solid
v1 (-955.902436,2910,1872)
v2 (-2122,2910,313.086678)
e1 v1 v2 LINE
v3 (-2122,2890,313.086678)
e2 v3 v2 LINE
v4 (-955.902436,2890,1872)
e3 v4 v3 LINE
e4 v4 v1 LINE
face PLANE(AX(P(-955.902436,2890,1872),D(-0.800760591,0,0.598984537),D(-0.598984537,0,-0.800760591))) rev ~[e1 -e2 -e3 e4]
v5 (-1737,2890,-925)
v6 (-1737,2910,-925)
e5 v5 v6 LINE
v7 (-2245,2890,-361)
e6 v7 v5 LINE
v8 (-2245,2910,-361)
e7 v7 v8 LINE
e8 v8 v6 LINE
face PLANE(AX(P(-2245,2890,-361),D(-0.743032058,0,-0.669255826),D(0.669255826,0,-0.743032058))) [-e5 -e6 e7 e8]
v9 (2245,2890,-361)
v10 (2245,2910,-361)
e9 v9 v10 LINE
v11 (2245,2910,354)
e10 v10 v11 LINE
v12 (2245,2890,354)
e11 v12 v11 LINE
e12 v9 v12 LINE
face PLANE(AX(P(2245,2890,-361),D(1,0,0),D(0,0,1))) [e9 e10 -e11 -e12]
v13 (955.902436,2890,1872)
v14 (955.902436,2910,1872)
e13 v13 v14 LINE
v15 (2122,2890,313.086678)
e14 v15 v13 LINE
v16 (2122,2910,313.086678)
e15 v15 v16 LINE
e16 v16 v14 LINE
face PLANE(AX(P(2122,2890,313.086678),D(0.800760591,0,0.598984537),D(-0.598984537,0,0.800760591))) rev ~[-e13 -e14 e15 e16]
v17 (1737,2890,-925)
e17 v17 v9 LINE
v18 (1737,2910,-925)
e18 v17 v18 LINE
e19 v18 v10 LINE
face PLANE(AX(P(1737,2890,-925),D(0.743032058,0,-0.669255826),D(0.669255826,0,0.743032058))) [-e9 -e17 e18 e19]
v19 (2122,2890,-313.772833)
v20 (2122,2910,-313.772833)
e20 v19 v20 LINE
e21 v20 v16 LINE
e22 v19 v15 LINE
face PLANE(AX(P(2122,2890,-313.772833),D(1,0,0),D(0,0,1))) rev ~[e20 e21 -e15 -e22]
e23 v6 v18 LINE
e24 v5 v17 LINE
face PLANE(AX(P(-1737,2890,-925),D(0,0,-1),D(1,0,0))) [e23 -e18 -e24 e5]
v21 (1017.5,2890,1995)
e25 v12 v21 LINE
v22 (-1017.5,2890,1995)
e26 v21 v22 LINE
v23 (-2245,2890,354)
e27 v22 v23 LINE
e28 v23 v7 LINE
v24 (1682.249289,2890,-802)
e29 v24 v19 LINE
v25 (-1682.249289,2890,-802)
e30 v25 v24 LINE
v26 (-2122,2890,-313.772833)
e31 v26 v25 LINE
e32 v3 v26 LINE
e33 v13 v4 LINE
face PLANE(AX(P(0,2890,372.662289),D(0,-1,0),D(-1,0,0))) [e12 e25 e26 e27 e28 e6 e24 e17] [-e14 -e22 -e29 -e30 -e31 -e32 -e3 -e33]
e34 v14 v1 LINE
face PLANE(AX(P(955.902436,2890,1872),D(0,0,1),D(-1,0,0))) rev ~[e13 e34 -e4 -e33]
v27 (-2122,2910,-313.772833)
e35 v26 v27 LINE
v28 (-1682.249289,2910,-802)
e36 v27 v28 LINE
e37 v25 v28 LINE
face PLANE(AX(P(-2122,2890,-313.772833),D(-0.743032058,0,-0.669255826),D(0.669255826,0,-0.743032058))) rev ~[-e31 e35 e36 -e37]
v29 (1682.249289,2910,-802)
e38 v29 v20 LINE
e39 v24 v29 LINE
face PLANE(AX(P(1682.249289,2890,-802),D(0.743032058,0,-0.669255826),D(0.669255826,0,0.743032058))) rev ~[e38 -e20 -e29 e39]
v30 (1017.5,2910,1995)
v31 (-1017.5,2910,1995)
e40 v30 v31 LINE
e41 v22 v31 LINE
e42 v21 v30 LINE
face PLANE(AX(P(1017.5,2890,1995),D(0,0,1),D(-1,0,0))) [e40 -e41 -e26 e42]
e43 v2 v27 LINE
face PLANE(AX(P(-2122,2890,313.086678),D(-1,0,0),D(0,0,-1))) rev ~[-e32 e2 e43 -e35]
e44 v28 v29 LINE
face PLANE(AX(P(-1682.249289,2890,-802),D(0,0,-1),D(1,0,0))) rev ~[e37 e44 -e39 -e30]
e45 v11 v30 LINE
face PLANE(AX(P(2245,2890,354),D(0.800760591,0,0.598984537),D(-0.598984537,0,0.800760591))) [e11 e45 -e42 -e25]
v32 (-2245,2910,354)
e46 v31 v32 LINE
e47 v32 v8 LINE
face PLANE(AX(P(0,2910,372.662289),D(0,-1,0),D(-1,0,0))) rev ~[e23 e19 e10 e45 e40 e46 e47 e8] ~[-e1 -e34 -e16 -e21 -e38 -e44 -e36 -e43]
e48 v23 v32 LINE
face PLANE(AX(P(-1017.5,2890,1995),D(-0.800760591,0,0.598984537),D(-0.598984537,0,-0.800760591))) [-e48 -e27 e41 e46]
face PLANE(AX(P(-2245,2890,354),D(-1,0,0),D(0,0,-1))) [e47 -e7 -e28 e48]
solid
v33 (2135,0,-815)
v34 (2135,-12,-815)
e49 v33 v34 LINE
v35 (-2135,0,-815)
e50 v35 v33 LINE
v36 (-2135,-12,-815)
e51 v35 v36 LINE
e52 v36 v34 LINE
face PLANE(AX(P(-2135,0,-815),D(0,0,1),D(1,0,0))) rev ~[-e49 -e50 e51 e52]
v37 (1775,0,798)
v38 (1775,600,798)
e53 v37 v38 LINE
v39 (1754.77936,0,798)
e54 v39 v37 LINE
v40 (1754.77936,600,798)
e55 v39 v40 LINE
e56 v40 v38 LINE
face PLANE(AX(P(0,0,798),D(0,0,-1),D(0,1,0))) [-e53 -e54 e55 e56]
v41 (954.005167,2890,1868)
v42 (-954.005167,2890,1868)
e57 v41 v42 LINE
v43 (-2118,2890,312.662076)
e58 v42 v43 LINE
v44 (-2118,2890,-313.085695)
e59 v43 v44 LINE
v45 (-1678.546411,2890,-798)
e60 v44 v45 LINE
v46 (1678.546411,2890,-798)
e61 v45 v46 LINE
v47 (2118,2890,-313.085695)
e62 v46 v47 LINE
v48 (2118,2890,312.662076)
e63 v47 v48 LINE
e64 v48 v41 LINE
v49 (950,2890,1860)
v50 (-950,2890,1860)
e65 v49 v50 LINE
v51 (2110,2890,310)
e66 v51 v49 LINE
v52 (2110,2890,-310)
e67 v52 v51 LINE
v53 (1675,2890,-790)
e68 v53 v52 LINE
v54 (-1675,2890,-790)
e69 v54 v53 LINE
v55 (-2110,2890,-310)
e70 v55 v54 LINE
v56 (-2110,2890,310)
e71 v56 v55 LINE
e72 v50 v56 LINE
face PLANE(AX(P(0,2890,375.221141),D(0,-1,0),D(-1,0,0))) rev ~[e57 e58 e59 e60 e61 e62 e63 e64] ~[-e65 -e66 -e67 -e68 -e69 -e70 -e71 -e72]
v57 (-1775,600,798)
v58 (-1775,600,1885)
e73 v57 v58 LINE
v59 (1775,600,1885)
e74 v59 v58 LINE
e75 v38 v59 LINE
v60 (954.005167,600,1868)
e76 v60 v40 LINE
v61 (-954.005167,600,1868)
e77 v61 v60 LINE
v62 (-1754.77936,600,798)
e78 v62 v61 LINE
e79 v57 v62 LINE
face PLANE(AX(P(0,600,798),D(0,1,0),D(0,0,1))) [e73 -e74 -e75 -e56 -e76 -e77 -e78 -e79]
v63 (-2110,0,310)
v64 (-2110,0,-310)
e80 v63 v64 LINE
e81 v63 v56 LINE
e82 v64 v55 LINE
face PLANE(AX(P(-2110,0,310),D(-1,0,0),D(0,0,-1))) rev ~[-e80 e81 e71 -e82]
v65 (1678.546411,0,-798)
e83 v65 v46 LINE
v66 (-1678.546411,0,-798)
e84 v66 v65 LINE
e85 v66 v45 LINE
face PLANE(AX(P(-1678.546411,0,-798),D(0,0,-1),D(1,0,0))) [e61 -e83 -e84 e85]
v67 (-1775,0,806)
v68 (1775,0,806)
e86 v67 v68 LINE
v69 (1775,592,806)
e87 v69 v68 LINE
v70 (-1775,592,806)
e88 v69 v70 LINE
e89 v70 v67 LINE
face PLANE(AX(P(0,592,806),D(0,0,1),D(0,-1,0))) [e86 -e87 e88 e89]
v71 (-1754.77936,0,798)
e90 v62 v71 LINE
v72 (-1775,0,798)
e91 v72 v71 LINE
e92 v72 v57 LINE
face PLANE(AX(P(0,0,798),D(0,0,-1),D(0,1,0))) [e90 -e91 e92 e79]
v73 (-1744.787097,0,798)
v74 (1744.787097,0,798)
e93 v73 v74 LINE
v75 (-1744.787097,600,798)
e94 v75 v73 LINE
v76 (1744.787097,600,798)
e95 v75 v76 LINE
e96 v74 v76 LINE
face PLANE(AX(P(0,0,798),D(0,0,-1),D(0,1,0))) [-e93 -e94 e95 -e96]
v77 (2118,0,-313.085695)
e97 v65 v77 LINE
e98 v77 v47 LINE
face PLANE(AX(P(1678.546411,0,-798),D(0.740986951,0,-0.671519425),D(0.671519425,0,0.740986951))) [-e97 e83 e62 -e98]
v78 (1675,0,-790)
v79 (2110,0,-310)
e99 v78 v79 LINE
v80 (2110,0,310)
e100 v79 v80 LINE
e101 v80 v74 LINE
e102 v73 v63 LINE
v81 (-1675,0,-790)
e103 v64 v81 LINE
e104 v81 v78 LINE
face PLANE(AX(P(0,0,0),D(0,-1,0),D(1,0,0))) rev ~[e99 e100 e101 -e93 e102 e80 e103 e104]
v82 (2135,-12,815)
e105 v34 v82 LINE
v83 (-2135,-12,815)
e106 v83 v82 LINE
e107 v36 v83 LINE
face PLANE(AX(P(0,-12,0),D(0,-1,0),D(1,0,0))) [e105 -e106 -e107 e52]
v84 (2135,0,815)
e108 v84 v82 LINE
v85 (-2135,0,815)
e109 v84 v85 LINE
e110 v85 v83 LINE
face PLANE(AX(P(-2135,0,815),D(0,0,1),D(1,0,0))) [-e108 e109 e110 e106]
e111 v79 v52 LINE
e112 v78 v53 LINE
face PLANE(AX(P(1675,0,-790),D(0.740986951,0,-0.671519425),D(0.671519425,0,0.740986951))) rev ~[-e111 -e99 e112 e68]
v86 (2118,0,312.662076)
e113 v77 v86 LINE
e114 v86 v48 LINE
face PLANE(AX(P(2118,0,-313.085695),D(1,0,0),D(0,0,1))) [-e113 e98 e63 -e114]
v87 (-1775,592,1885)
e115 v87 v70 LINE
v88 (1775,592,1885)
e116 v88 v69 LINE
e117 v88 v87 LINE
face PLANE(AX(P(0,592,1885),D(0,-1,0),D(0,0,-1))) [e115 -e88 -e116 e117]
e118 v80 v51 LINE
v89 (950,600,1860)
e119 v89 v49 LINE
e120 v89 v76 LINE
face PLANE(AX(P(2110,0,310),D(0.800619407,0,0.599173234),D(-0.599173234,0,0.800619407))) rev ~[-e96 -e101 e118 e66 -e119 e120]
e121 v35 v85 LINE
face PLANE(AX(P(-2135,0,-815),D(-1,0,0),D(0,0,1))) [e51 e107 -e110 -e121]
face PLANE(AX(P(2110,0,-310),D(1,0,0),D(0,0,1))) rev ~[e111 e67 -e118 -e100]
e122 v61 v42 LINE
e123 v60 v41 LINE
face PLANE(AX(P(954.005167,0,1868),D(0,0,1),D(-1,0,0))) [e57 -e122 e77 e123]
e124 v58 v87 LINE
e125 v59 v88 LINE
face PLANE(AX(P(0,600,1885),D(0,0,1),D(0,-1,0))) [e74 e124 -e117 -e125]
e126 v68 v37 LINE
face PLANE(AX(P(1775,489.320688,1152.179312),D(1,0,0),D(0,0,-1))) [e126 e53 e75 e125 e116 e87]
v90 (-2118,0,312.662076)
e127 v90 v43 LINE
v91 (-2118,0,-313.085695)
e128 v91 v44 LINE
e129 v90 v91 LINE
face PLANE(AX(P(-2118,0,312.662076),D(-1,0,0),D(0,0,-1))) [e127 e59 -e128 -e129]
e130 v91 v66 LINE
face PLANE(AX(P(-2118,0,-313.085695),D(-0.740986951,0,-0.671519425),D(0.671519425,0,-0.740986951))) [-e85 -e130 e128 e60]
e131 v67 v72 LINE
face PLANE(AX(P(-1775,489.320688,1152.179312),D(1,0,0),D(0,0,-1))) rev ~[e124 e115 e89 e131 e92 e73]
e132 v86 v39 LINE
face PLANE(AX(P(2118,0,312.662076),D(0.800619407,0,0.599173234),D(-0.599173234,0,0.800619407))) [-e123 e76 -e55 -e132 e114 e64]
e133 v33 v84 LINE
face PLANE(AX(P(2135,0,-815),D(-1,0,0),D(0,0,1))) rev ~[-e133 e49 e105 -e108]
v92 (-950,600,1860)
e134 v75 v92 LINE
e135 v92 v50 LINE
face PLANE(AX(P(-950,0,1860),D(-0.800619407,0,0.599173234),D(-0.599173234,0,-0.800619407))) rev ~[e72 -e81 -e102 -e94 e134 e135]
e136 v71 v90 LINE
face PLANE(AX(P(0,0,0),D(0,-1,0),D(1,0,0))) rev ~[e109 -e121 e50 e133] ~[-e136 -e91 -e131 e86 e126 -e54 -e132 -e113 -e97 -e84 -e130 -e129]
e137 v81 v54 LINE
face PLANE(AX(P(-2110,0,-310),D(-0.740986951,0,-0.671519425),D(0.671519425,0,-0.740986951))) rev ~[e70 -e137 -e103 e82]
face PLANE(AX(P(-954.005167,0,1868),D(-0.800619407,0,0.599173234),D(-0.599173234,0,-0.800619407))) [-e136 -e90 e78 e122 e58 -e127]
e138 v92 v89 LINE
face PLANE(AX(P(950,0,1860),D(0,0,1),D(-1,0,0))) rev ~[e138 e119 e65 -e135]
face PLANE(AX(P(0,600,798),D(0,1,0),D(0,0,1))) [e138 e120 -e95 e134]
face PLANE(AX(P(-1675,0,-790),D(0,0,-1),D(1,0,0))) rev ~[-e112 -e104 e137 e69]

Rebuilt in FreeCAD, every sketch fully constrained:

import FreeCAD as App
import Part
import Sketcher
Q = App.Units.Quantity


def add_polygon(sketch, points):
    """Adds a closed chain of lines whose ends are joined by coincident constraints."""
    first, n = sketch.GeometryCount, len(points)
    for a, b in zip(points, points[1:] + points[:1]):
        sketch.addGeometry(Part.LineSegment(App.Vector(*a, 0), App.Vector(*b, 0)), False)
    for i in range(n):
        sketch.addConstraint(Sketcher.Constraint("Coincident", first + i, 2, first + (i + 1) % n, 1))

doc = App.newDocument("Part")
params = doc.addObject("Spreadsheet::Sheet", "Params")
for row, (alias, value) in enumerate([
    ("sketch1_width", "3350 mm"),
    ("sketch1_width2", "1900 mm"),
    ("sketch1_height", "620 mm"),
    ("pad1_length", "2890 mm"),
    ("sketch2_width", "4270 mm"),
    ("sketch2_height", "1630 mm"),
    ("pad2_length", "12 mm"),
    ("pocket1_length", "600 mm"),
    ("sketch4_width", "592 mm"),
    ("sketch4_width2", "600 mm"),
    ("sketch4_height", "1087 mm"),
    ("pad3_length", "3550 mm"),
    ("sketch5_width", "3474 mm"),
    ("sketch5_width2", "2035 mm"),
    ("sketch5_height", "715 mm"),
    ("pad4_length", "20 mm"),
], start=1):
    params.set(f"A{row}", alias)
    params.set(f"B{row}", "=" + value)
    params.setAlias(f"B{row}", alias)

body = doc.addObject("PartDesign::Body", "Body")

# Sketch on XZ plane
sketch1 = body.newObject("Sketcher::SketchObject", "Sketch")
sketch1.AttachmentSupport = (doc.getObject("XZ_Plane"), [""])
sketch1.MapMode = "FlatFace"
add_polygon(sketch1, [(1679, -798), (-1679, -798), (-2118, -313), (-2118, 313), (-954, 1868), (954, 1868), (2118, 313), (2118, -313)])  # lines 0-7
add_polygon(sketch1, [(-1675, -790), (1675, -790), (2110, -310), (2110, 310), (950, 1860), (-950, 1860), (-2110, 310), (-2110, -310)])  # lines 8-15
sketch1.addConstraint([
    Sketcher.Constraint("Horizontal", 0),
    Sketcher.Constraint("Vertical", 2),
    Sketcher.Constraint("Horizontal", 4),
    Sketcher.Constraint("Vertical", 6),
    Sketcher.Constraint("Horizontal", 8),
    Sketcher.Constraint("Vertical", 10),
    Sketcher.Constraint("Horizontal", 12),
    Sketcher.Constraint("Vertical", 14),
    Sketcher.Constraint("Symmetric", 9, 2, 13, 2, -1, 1),
    Sketcher.Constraint("Symmetric", 2, 2, 5, 2, -2),
    Sketcher.Constraint("Parallel", 7, 9),
    Sketcher.Constraint("Parallel", 5, 11),
    Sketcher.Constraint("Parallel", 3, 13),
    Sketcher.Constraint("Parallel", 1, 15),
    Sketcher.Constraint("Horizontal", 1, 2, 6, 2),
    Sketcher.Constraint("Horizontal", 10, 2, 13, 2),
    Sketcher.Constraint("Horizontal", 9, 2, 14, 2),
    Sketcher.Constraint("Equal", 3, 5),
    Sketcher.Constraint("Equal", 1, 7),
    Sketcher.Constraint("DistanceX", 8, 1, 8, 2, Q("3350 mm")),
    Sketcher.Constraint("DistanceX", 12, 2, 12, 1, Q("1900 mm")),
    Sketcher.Constraint("DistanceY", 10, 1, 10, 2, Q("620 mm")),
    Sketcher.Constraint("DistanceY", 0, 2, -1, 1, Q("798 mm")),
    Sketcher.Constraint("DistanceX", 1, 2, -1, 1, Q("2118 mm")),
    Sketcher.Constraint("DistanceY", -1, 1, 3, 2, Q("1868 mm")),
    Sketcher.Constraint("DistanceY", 8, 2, -1, 1, Q("790 mm")),
    Sketcher.Constraint("DistanceX", -1, 1, 9, 2, Q("2110 mm")),
    Sketcher.Constraint("DistanceY", -1, 1, 11, 2, Q("1860 mm")),
    Sketcher.Constraint("DistanceY", 2, 1, 2, 2, Q("625.747771 mm")),
    Sketcher.Constraint("DistanceX", 0, 2, 0, 1, Q("3357.092823 mm")),
])
sketch1.setExpression("Constraints[35]", "Params.sketch1_width")
sketch1.setExpression("Constraints[36]", "Params.sketch1_width2")
sketch1.setExpression("Constraints[37]", "Params.sketch1_height")
pad1 = body.newObject("PartDesign::Pad", "Pad")
pad1.Profile = sketch1
pad1.setExpression("Length", "Params.pad1_length")
pad1.Reversed = True

# Sketch on XZ plane
sketch2 = body.newObject("Sketcher::SketchObject", "Sketch001")
sketch2.AttachmentSupport = (doc.getObject("XZ_Plane"), [""])
sketch2.MapMode = "FlatFace"
add_polygon(sketch2, [(-2135, 815), (-2135, -815), (2135, -815), (2135, 815)])  # lines 0-3
sketch2.addConstraint([
    Sketcher.Constraint("Vertical", 0),
    Sketcher.Constraint("Horizontal", 1),
    Sketcher.Constraint("Vertical", 2),
    Sketcher.Constraint("Horizontal", 3),
    Sketcher.Constraint("Symmetric", 0, 2, 2, 2, -1, 1),
    Sketcher.Constraint("DistanceX", 1, 1, 1, 2, Q("4270 mm")),
    Sketcher.Constraint("DistanceY", 0, 2, 0, 1, Q("1630 mm")),
])
sketch2.setExpression("Constraints[9]", "Params.sketch2_width")
sketch2.setExpression("Constraints[10]", "Params.sketch2_height")
pad2 = body.newObject("PartDesign::Pad", "Pad001")
pad2.Profile = sketch2
pad2.setExpression("Length", "Params.pad2_length")

# Sketch on XZ plane
sketch3 = body.newObject("Sketcher::SketchObject", "Sketch002")
sketch3.AttachmentSupport = (doc.getObject("XZ_Plane"), [""])
sketch3.MapMode = "FlatFace"
add_polygon(sketch3, [(-1758, 1998), (-1758, 798), (1908, 798), (1908, 1998)])  # lines 0-3
sketch3.addConstraint([
    Sketcher.Constraint("Vertical", 0),
    Sketcher.Constraint("Horizontal", 1),
    Sketcher.Constraint("Vertical", 2),
    Sketcher.Constraint("Horizontal", 3),
    Sketcher.Constraint("DistanceY", -1, 1, 0, 2, Q("798 mm")),
    Sketcher.Constraint("DistanceX", 1, 1, 1, 2, Q("3666.559691 mm")),
    Sketcher.Constraint("DistanceY", 0, 2, 0, 1, Q("1200.183205 mm")),
    Sketcher.Constraint("DistanceX", 0, 2, -1, 1, Q("1758.200111 mm")),
])
pocket1 = body.newObject("PartDesign::Pocket", "Pocket")
pocket1.Profile = sketch3
pocket1.setExpression("Length", "Params.pocket1_length")

# Sketch on YZ plane
sketch4 = body.newObject("Sketcher::SketchObject", "Sketch003")
sketch4.AttachmentSupport = (doc.getObject("YZ_Plane"), [""])
sketch4.MapMode = "FlatFace"
add_polygon(sketch4, [(592, 806), (0, 806), (0, 798), (600, 798), (600, 1885), (592, 1885)])  # lines 0-5
sketch4.addConstraint([
    Sketcher.Constraint("Horizontal", 0),
    Sketcher.Constraint("Vertical", 1),
    Sketcher.Constraint("Horizontal", 2),
    Sketcher.Constraint("Vertical", 3),
    Sketcher.Constraint("Horizontal", 4),
    Sketcher.Constraint("Vertical", 5),
    Sketcher.Constraint("PointOnObject", 0, 2, -2),
    Sketcher.Constraint("Equal", 4, 1),
    Sketcher.Constraint("DistanceX", 0, 2, 0, 1, Q("592 mm")),
    Sketcher.Constraint("DistanceX", 2, 1, 2, 2, Q("600 mm")),
    Sketcher.Constraint("DistanceY", 3, 1, 3, 2, Q("1087 mm")),
    Sketcher.Constraint("DistanceY", -1, 1, 0, 2, Q("806 mm")),
])
sketch4.setExpression("Constraints[14]", "Params.sketch4_width")
sketch4.setExpression("Constraints[15]", "Params.sketch4_width2")
sketch4.setExpression("Constraints[16]", "Params.sketch4_height")
pad3 = body.newObject("PartDesign::Pad", "Pad002")
pad3.Profile = sketch4
pad3.setExpression("Length", "Params.pad3_length")
pad3.Midplane = True
body2 = doc.addObject("PartDesign::Body", "Body001")

# Sketch on XZ plane
sketch5 = body2.newObject("Sketcher::SketchObject", "Sketch004")
sketch5.AttachmentSupport = (doc.getObject("XZ_Plane001"), [""])
sketch5.MapMode = "FlatFace"
sketch5.AttachmentOffset = App.Placement(App.Vector(0, 0, -2890), App.Rotation())
add_polygon(sketch5, [(1737, -925), (-1737, -925), (-2245, -361), (-2245, 354), (-1018, 1995), (1018, 1995), (2245, 354), (2245, -361)])  # lines 0-7
add_polygon(sketch5, [(-1682, -802), (1682, -802), (2122, -314), (2122, 313), (956, 1872), (-956, 1872), (-2122, 313), (-2122, -314)])  # lines 8-15
sketch5.addConstraint([
    Sketcher.Constraint("Horizontal", 0),
    Sketcher.Constraint("Vertical", 2),
    Sketcher.Constraint("Horizontal", 4),
    Sketcher.Constraint("Vertical", 6),
    Sketcher.Constraint("Horizontal", 8),
    Sketcher.Constraint("Vertical", 10),
    Sketcher.Constraint("Horizontal", 12),
    Sketcher.Constraint("Vertical", 14),
    Sketcher.Constraint("Symmetric", 2, 2, 5, 2, -2),
    Sketcher.Constraint("Symmetric", 10, 2, 13, 2, -2),
    Sketcher.Constraint("Parallel", 7, 9),
    Sketcher.Constraint("Parallel", 5, 11),
    Sketcher.Constraint("Parallel", 3, 13),
    Sketcher.Constraint("Parallel", 1, 15),
    Sketcher.Constraint("Horizontal", 1, 2, 6, 2),
    Sketcher.Constraint("Horizontal", 9, 2, 14, 2),
    Sketcher.Constraint("Equal", 3, 5),
    Sketcher.Constraint("Equal", 1, 7),
    Sketcher.Constraint("DistanceX", 0, 2, 0, 1, Q("3474 mm")),
    Sketcher.Constraint("DistanceX", 4, 1, 4, 2, Q("2035 mm")),
    Sketcher.Constraint("DistanceY", 2, 1, 2, 2, Q("715 mm")),
    Sketcher.Constraint("DistanceY", 0, 2, -1, 1, Q("925 mm")),
    Sketcher.Constraint("DistanceX", 1, 2, -1, 1, Q("2245 mm")),
    Sketcher.Constraint("DistanceY", 1, 2, -1, 1, Q("361 mm")),
    Sketcher.Constraint("DistanceY", -1, 1, 3, 2, Q("1995 mm")),
    Sketcher.Constraint("DistanceY", 8, 2, -1, 1, Q("802 mm")),
    Sketcher.Constraint("DistanceX", -1, 1, 9, 2, Q("2122 mm")),
    Sketcher.Constraint("DistanceY", -1, 1, 11, 2, Q("1872 mm")),
    Sketcher.Constraint("DistanceX", 8, 1, 8, 2, Q("3364.498578 mm")),
    Sketcher.Constraint("DistanceX", 12, 2, 12, 1, Q("1911.804872 mm")),
])
sketch5.setExpression("Constraints[34]", "Params.sketch5_width")
sketch5.setExpression("Constraints[35]", "Params.sketch5_width2")
sketch5.setExpression("Constraints[36]", "Params.sketch5_height")
pad4 = body2.newObject("PartDesign::Pad", "Pad003")
pad4.Profile = sketch5
pad4.setExpression("Length", "Params.pad4_length")
pad4.Reversed = True

doc.recompute()
